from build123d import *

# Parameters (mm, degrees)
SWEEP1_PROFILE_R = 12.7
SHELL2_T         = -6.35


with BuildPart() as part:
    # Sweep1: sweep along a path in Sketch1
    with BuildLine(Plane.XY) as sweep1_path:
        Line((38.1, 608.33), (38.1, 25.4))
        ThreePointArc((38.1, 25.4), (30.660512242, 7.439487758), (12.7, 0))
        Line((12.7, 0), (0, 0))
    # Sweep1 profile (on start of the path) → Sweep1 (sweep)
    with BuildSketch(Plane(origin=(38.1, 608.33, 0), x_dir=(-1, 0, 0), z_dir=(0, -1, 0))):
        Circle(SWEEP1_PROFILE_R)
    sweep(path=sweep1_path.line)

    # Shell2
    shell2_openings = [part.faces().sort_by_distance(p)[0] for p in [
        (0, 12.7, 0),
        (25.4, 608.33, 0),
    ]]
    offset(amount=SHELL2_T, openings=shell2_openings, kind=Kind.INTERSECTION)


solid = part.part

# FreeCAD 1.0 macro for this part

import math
import FreeCAD as App
import Part
import Sketcher

V = App.Vector
Q = App.Units.Quantity


def faces_at(feature, points):
    """Names of the faces that lie closest to the given points."""
    faces = feature.Shape.Faces
    near = lambda p: min(range(len(faces)), key=lambda i: faces[i].distToShape(Part.Vertex(*p))[0])
    return sorted({f"Face{near(p) + 1}" for p in points})

doc = App.newDocument("Part")
params = doc.addObject("Spreadsheet::Sheet", "Params")
for row, (alias, value) in enumerate([
    ("sketch1_diameter", "1 in"),
    ("sketch2_radius", "1 in"),
    ("sketch2_width", "0.5 in"),
    ("sketch2_height", "22.95 in"),
    ("thickness_wall", "0.25 in"),
], start=1):
    params.set(f"A{row}", alias)
    params.set(f"B{row}", "=" + value)
    params.setAlias(f"B{row}", alias)

body = doc.addObject("PartDesign::Body", "Body")

# Sketch on XZ plane
sketch1 = doc.addObject("Sketcher::SketchObject", "Sketch")
body.addObject(sketch1)
sketch1.AttachmentSupport = (doc.XZ_Plane, [""])
sketch1.MapMode = "FlatFace"
sketch1.AttachmentOffset = App.Placement(V(0, 0, -23.95 * 25.4), App.Rotation())
sketch1.addGeometry(Part.Circle(V(38.1, 0, 0), V(0, 0, 1), 12.7), False)
sketch1.addConstraint([
    Sketcher.Constraint("PointOnObject", 0, 3, -1),
    Sketcher.Constraint("Diameter", 0, Q("1 in")),
    Sketcher.Constraint("DistanceX", -1, 1, 0, 3, Q("1.5 in")),
])
sketch1.setExpression("Constraints[1]", "Params.sketch1_diameter")

# Sketch on XY plane
sketch2 = doc.addObject("Sketcher::SketchObject", "Sketch001")
body.addObject(sketch2)
sketch2.AttachmentSupport = (doc.XY_Plane, [""])
sketch2.MapMode = "FlatFace"
sketch2.addGeometry([
    Part.LineSegment(V(38.1, 608.33, 0), V(38.1, 25.4, 0)),
    Part.ArcOfCircle(Part.Circle(V(12.7, 25.4, 0), V(0, 0, 1), 25.4), math.radians(-90), math.radians(0)),
    Part.LineSegment(V(12.7, 0, 0), V(0, 0, 0)),
], False)
sketch2.addConstraint([
    Sketcher.Constraint("Tangent", 0, 2, 1, 2),
    Sketcher.Constraint("Tangent", 1, 1, 2, 1),
    Sketcher.Constraint("Vertical", 0),
    Sketcher.Constraint("Horizontal", 2),
    Sketcher.Constraint("Coincident", 2, 2, -1, 1),
    Sketcher.Constraint("Radius", 1, Q("1 in")),
    Sketcher.Constraint("DistanceX", 2, 2, 2, 1, Q("0.5 in")),
    Sketcher.Constraint("DistanceY", 0, 2, 0, 1, Q("22.95 in")),
])
sketch2.setExpression("Constraints[5]", "Params.sketch2_radius")
sketch2.setExpression("Constraints[6]", "Params.sketch2_width")
sketch2.setExpression("Constraints[7]", "Params.sketch2_height")
doc.recompute()

additivepipe = doc.addObject("PartDesign::AdditivePipe", "AdditivePipe")
body.addObject(additivepipe)
additivepipe.Profile = sketch1
additivepipe.Spine = (sketch2, ["Edge1", "Edge2", "Edge3"])
doc.recompute()

thickness = doc.addObject("PartDesign::Thickness", "Thickness")
body.addObject(thickness)
thickness.Base = (additivepipe, faces_at(additivepipe, [(0, 0, 0), (38.1, 608.33, 0)]))
thickness.setExpression("Value", "Params.thickness_wall")
thickness.Reversed = True
thickness.Join = "Intersection"

doc.recompute()
